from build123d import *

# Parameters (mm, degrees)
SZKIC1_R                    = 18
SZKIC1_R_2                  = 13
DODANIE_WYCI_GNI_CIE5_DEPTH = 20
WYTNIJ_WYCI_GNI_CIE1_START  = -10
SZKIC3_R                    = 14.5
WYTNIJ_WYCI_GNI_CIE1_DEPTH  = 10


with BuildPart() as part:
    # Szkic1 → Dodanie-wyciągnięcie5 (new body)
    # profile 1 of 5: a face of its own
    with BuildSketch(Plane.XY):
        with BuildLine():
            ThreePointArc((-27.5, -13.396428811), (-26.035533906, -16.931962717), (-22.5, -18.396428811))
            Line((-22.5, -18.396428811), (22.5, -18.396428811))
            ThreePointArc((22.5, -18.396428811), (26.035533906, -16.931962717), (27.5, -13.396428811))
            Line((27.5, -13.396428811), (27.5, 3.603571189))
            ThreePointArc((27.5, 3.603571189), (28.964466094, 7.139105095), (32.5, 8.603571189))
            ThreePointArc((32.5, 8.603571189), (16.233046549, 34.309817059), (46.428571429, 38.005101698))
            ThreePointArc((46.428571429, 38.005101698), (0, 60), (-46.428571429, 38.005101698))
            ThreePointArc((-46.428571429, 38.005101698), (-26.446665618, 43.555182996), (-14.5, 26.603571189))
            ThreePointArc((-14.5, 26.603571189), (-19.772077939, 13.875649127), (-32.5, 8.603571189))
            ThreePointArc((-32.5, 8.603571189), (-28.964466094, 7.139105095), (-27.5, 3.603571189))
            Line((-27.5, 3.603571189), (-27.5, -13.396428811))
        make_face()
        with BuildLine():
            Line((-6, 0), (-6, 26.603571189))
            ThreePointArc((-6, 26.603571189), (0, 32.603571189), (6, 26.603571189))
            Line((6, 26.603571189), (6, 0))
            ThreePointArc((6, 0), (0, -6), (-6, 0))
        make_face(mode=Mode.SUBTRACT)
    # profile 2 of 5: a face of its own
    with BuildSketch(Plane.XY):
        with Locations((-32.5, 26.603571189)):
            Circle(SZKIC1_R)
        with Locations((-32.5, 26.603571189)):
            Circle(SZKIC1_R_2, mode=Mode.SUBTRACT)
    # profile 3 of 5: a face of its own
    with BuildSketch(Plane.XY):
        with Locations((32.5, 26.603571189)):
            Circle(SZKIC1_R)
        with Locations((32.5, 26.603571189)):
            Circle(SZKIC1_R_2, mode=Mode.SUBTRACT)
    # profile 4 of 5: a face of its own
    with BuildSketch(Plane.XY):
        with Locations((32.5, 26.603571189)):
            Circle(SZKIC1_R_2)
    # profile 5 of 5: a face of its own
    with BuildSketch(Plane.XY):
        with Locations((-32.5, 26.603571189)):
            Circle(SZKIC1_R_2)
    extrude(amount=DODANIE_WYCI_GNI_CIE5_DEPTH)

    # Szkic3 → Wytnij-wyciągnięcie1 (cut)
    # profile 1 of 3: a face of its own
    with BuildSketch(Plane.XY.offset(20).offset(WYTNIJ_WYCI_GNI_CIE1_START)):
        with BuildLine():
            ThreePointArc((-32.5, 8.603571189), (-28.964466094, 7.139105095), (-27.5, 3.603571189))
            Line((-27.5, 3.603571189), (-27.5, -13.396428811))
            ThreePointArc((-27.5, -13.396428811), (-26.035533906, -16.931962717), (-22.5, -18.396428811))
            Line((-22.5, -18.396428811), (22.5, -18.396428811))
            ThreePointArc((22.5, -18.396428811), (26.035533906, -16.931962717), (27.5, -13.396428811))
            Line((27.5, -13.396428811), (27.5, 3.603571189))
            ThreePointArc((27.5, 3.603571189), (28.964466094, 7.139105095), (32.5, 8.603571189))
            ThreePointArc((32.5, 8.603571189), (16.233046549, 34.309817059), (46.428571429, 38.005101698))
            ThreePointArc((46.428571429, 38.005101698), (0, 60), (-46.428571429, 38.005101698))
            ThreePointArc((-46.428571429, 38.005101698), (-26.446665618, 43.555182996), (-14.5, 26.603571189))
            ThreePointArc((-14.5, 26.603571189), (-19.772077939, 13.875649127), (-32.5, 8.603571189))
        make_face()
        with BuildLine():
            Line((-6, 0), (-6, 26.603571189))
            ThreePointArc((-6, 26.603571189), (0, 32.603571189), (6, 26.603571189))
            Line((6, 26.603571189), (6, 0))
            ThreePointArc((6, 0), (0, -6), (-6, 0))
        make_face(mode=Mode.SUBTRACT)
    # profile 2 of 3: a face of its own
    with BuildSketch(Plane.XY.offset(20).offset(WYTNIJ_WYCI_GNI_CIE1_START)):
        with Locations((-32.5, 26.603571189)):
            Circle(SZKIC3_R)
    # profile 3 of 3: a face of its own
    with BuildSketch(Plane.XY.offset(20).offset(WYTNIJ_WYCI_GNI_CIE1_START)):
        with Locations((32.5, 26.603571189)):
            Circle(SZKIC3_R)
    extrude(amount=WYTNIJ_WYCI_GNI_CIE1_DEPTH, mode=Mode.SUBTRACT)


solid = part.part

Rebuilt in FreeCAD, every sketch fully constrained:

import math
import FreeCAD as App
import Part
import Sketcher

V = App.Vector

doc = App.newDocument("Part")
body = doc.addObject("PartDesign::Body", "Body")

# Sketch on XY plane
sketch1 = body.newObject("Sketcher::SketchObject", "Sketch")
sketch1.AttachmentSupport = (doc.getObject("XY_Plane"), [""])
sketch1.MapMode = "FlatFace"
sketch1.addGeometry([
    Part.ArcOfCircle(Part.Circle(V(-22, -13, 0), V(0, 0, 1), 5), math.radians(180), math.radians(270)),  # 0
    Part.LineSegment(V(-22, -18, 0), V(22, -18, 0)),  # 1
    Part.ArcOfCircle(Part.Circle(V(22, -13, 0), V(0, 0, 1), 5), math.radians(-90), math.radians(0)),  # 2
    Part.LineSegment(V(28, -13, 0), V(28, 4, 0)),  # 3
    Part.ArcOfCircle(Part.Circle(V(32, 4, 0), V(0, 0, 1), 5), math.radians(90), math.radians(180)),  # 4
    Part.ArcOfCircle(Part.Circle(V(32, 27, 0), V(0, 0, 1), 18), math.radians(-90), math.radians(39)),  # 5
    Part.ArcOfCircle(Part.Circle(V(0, 0, 0), V(0, 0, 1), 60), math.radians(39), math.radians(141)),  # 6
    Part.ArcOfCircle(Part.Circle(V(-32, 27, 0), V(0, 0, 1), 18), math.radians(141), math.radians(270)),  # 7
    Part.ArcOfCircle(Part.Circle(V(-32, 4, 0), V(0, 0, 1), 5), math.radians(0), math.radians(90)),  # 8
    Part.LineSegment(V(-28, 4, 0), V(-28, -13, 0)),  # 9
    Part.ArcOfCircle(Part.Circle(V(0, 0, 0), V(0, 0, 1), 6), math.radians(180), math.radians(360)),  # 10
    Part.LineSegment(V(-6, 0, 0), V(-6, 27, 0)),  # 11
    Part.ArcOfCircle(Part.Circle(V(0, 27, 0), V(0, 0, 1), 6), math.radians(0), math.radians(180)),  # 12
    Part.LineSegment(V(6, 27, 0), V(6, 0, 0)),  # 13
], False)
sketch1.addConstraint([
    Sketcher.Constraint("Tangent", 0, 2, 1, 1),
    Sketcher.Constraint("Tangent", 1, 2, 2, 1),
    Sketcher.Constraint("Tangent", 2, 2, 3, 1),
    Sketcher.Constraint("Tangent", 3, 2, 4, 2),
    Sketcher.Constraint("Tangent", 4, 1, 5, 1),
    Sketcher.Constraint("Tangent", 5, 2, 6, 1),
    Sketcher.Constraint("Tangent", 6, 2, 7, 1),
    Sketcher.Constraint("Tangent", 7, 2, 8, 2),
    Sketcher.Constraint("Tangent", 8, 1, 9, 1),
    Sketcher.Constraint("Tangent", 9, 2, 0, 1),
    Sketcher.Constraint("Tangent", 10, 1, 11, 1),
    Sketcher.Constraint("Tangent", 11, 2, 12, 2),
    Sketcher.Constraint("Tangent", 12, 1, 13, 1),
    Sketcher.Constraint("Tangent", 13, 2, 10, 2),
    Sketcher.Constraint("Horizontal", 1),
    Sketcher.Constraint("Vertical", 3),
    Sketcher.Constraint("Vertical", 9),
    Sketcher.Constraint("Vertical", 11),
    Sketcher.Constraint("Vertical", 13),
    Sketcher.Constraint("Coincident", 6, 3, -1, 1),
    Sketcher.Constraint("Coincident", 10, 3, -1, 1),
    Sketcher.Constraint("Equal", 0, 2),
    Sketcher.Constraint("Equal", 2, 4),
    Sketcher.Constraint("Equal", 5, 7),
    Sketcher.Constraint("Equal", 4, 8),
    Sketcher.Constraint("Symmetric", 4, 3, 8, 3, -2),
    Sketcher.Constraint("Horizontal", 7, 3, 12, 3),
    Sketcher.Constraint("Vertical", 4, 3, 5, 3),
    Sketcher.Constraint("Radius", 0, 5.0),
    Sketcher.Constraint("Radius", 5, 18.0),
    Sketcher.Constraint("Radius", 6, 60.0),
    Sketcher.Constraint("Radius", 10, 6.0),
    Sketcher.Constraint("DistanceX", 1, 1, 1, 2, 45.0),
    Sketcher.Constraint("DistanceY", 3, 1, 3, 2, 17.0),
])
pad1 = body.newObject("PartDesign::Pad", "Pad")
pad1.Profile = sketch1
pad1.Length = 20

# Sketch on XY plane
sketch2 = body.newObject("Sketcher::SketchObject", "Sketch001")
sketch2.AttachmentSupport = (doc.getObject("XY_Plane"), [""])
sketch2.MapMode = "FlatFace"
sketch2.AttachmentOffset = App.Placement(V(0, 0, 10), App.Rotation())
sketch2.addGeometry([
    Part.ArcOfCircle(Part.Circle(V(-32, 4, 0), V(0, 0, 1), 5), math.radians(0), math.radians(90)),  # 0
    Part.LineSegment(V(-28, 4, 0), V(-28, -13, 0)),  # 1
    Part.ArcOfCircle(Part.Circle(V(-22, -13, 0), V(0, 0, 1), 5), math.radians(180), math.radians(270)),  # 2
    Part.LineSegment(V(-22, -18, 0), V(22, -18, 0)),  # 3
    Part.ArcOfCircle(Part.Circle(V(22, -13, 0), V(0, 0, 1), 5), math.radians(-90), math.radians(0)),  # 4
    Part.LineSegment(V(28, -13, 0), V(28, 4, 0)),  # 5
    Part.ArcOfCircle(Part.Circle(V(32, 4, 0), V(0, 0, 1), 5), math.radians(90), math.radians(180)),  # 6
    Part.ArcOfCircle(Part.Circle(V(32, 27, 0), V(0, 0, 1), 18), math.radians(39), math.radians(270)),  # 7
    Part.ArcOfCircle(Part.Circle(V(0, 0, 0), V(0, 0, 1), 60), math.radians(39), math.radians(141)),  # 8
    Part.ArcOfCircle(Part.Circle(V(-32, 27, 0), V(0, 0, 1), 18), math.radians(0), math.radians(141)),  # 9
    Part.ArcOfCircle(Part.Circle(V(-32, 27, 0), V(0, 0, 1), 18), math.radians(-90), math.radians(0)),  # 10
    Part.ArcOfCircle(Part.Circle(V(0, 0, 0), V(0, 0, 1), 6), math.radians(180), math.radians(360)),  # 11
    Part.LineSegment(V(-6, 0, 0), V(-6, 27, 0)),  # 12
    Part.ArcOfCircle(Part.Circle(V(0, 27, 0), V(0, 0, 1), 6), math.radians(0), math.radians(180)),  # 13
    Part.LineSegment(V(6, 27, 0), V(6, 0, 0)),  # 14
    Part.Circle(V(-32, 27, 0), V(0, 0, 1), 14),  # 15
    Part.Circle(V(32, 27, 0), V(0, 0, 1), 14),  # 16
], False)
sketch2.addConstraint([
    Sketcher.Constraint("Tangent", 0, 1, 1, 1),
    Sketcher.Constraint("Tangent", 1, 2, 2, 1),
    Sketcher.Constraint("Tangent", 2, 2, 3, 1),
    Sketcher.Constraint("Tangent", 3, 2, 4, 1),
    Sketcher.Constraint("Tangent", 4, 2, 5, 1),
    Sketcher.Constraint("Tangent", 5, 2, 6, 2),
    Sketcher.Constraint("Tangent", 6, 1, 7, 2),
    Sketcher.Constraint("Tangent", 7, 1, 8, 1),
    Sketcher.Constraint("Tangent", 8, 2, 9, 2),
    Sketcher.Constraint("Tangent", 9, 1, 10, 2),
    Sketcher.Constraint("Tangent", 10, 1, 0, 2),
    Sketcher.Constraint("Tangent", 11, 1, 12, 1),
    Sketcher.Constraint("Tangent", 12, 2, 13, 2),
    Sketcher.Constraint("Tangent", 13, 1, 14, 1),
    Sketcher.Constraint("Tangent", 14, 2, 11, 2),
    Sketcher.Constraint("Vertical", 1),
    Sketcher.Constraint("Horizontal", 3),
    Sketcher.Constraint("Vertical", 5),
    Sketcher.Constraint("Vertical", 12),
    Sketcher.Constraint("Vertical", 14),
    Sketcher.Constraint("Coincident", 8, 3, -1, 1),
    Sketcher.Constraint("Coincident", 11, 3, -1, 1),
    Sketcher.Constraint("Coincident", 15, 3, 9, 3),
    Sketcher.Constraint("Coincident", 16, 3, 7, 3),
    Sketcher.Constraint("Equal", 0, 2),
    Sketcher.Constraint("Equal", 2, 4),
    Sketcher.Constraint("Equal", 4, 6),
    Sketcher.Constraint("Equal", 7, 9),
    Sketcher.Constraint("Equal", 9, 10),
    Sketcher.Constraint("Equal", 15, 16),
    Sketcher.Constraint("Symmetric", 0, 3, 6, 3, -2),
    Sketcher.Constraint("Horizontal", 10, 3, 13, 3),
    Sketcher.Constraint("Horizontal", 16, 3, 9, 1),
    Sketcher.Constraint("Vertical", 6, 3, 7, 3),
    Sketcher.Constraint("Diameter", 15, 29.0),
    Sketcher.Constraint("Radius", 0, 5.0),
    Sketcher.Constraint("Radius", 7, 18.0),
    Sketcher.Constraint("Radius", 8, 60.0),
    Sketcher.Constraint("Radius", 11, 6.0),
    Sketcher.Constraint("DistanceX", 3, 1, 3, 2, 45.0),
    Sketcher.Constraint("DistanceY", 1, 2, 1, 1, 17.0),
])
pocket1 = body.newObject("PartDesign::Pocket", "Pocket")
pocket1.Profile = sketch2
pocket1.Length = 10
pocket1.Reversed = True

doc.recompute()
